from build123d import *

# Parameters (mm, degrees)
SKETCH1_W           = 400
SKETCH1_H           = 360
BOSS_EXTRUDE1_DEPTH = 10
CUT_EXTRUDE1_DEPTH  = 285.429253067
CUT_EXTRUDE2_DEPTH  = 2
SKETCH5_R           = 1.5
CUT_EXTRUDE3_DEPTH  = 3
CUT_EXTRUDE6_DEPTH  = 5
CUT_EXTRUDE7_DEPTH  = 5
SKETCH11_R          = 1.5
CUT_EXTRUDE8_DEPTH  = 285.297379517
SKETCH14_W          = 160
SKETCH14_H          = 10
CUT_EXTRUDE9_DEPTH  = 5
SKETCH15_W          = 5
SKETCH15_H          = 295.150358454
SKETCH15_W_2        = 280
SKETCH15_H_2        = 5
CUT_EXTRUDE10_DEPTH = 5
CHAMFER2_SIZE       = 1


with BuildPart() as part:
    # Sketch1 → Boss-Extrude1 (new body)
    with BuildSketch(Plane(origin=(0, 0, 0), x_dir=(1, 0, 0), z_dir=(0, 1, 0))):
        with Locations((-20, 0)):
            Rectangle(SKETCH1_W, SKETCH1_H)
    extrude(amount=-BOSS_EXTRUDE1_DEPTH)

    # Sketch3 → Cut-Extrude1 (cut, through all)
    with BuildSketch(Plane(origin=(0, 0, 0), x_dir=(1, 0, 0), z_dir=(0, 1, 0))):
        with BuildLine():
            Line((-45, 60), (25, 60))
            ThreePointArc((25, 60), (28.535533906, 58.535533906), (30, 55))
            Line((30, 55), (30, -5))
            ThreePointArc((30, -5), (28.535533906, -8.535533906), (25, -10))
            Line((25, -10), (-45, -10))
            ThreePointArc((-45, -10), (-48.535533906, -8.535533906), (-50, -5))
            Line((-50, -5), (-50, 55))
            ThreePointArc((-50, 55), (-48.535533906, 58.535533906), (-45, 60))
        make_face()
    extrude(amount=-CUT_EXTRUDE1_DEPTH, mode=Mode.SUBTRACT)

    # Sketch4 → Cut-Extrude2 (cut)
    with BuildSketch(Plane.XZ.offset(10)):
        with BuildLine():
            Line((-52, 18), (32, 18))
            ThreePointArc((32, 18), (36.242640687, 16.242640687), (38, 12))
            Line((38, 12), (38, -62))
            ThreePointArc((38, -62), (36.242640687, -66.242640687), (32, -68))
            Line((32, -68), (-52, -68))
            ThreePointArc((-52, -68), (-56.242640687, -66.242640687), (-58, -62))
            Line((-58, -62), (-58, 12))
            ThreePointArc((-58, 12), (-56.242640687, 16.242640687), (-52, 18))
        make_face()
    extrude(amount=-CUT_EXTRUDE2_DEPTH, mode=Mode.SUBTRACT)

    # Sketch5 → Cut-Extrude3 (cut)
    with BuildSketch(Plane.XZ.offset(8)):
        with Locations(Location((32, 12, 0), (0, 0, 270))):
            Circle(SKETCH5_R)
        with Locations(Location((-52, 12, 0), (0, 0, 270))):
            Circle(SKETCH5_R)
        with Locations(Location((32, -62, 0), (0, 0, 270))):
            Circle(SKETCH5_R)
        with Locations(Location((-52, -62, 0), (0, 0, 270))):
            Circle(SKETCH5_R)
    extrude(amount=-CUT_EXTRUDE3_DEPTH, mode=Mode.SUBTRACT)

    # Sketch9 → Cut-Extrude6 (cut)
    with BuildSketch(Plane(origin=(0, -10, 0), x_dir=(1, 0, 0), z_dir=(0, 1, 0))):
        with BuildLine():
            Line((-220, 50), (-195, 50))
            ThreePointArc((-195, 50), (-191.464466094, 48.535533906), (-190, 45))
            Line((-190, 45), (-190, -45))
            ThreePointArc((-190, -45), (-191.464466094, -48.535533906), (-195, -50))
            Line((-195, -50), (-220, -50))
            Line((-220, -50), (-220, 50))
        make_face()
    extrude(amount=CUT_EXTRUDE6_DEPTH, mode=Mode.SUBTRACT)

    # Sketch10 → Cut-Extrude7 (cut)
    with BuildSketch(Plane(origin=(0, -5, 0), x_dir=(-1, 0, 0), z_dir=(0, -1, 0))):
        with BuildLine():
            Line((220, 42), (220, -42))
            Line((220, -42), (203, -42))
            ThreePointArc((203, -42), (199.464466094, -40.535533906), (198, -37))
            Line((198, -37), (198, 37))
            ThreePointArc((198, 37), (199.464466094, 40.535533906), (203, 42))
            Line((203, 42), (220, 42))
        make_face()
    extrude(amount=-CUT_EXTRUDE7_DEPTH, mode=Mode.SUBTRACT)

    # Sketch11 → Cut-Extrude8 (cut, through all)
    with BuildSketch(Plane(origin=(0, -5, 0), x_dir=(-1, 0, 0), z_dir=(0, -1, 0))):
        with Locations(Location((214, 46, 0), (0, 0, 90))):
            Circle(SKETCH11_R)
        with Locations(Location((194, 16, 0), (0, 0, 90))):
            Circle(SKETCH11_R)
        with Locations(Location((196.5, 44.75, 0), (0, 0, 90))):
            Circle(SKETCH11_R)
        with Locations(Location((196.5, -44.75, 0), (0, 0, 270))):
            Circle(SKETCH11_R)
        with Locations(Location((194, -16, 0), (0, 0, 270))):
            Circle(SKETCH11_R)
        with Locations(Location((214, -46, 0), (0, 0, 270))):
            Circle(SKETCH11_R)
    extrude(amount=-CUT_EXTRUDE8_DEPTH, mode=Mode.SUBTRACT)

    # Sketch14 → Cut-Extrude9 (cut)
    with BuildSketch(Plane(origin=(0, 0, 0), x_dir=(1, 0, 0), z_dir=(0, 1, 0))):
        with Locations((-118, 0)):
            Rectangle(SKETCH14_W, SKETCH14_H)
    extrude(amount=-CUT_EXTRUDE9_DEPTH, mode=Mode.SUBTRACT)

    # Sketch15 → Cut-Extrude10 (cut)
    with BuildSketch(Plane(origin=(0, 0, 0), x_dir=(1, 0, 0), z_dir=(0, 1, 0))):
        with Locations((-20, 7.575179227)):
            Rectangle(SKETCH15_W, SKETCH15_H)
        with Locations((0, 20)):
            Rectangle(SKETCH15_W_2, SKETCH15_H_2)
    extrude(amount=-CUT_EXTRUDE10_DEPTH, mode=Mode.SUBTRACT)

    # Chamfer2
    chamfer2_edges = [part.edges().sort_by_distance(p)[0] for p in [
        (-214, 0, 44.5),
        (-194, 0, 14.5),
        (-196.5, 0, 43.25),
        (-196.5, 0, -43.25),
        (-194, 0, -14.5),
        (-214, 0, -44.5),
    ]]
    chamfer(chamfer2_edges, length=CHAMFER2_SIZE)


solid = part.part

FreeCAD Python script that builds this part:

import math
import FreeCAD as App
import Part
import Sketcher


def edges_at(feature, points):
    """Names of the edges that pass closest to the given points."""
    edges = feature.Shape.Edges
    near = lambda p: min(range(len(edges)), key=lambda i: edges[i].distToShape(Part.Vertex(*p))[0])
    return sorted({f"Edge{near(p) + 1}" for p in points})

doc = App.newDocument("Part")
body = doc.addObject("PartDesign::Body", "Body")

sketch1 = doc.addObject("Sketcher::SketchObject", "Sketch")
body.addObject(sketch1)
sketch1.AttachmentSupport = (doc.XZ_Plane, [""])
sketch1.MapMode = "FlatFace"
sketch1.addGeometry([
    Part.LineSegment(App.Vector(-220, -180, 0), App.Vector(-220, 180, 0)),
    Part.LineSegment(App.Vector(-220, 180, 0), App.Vector(180, 180, 0)),
    Part.LineSegment(App.Vector(180, 180, 0), App.Vector(180, -180, 0)),
    Part.LineSegment(App.Vector(180, -180, 0), App.Vector(-220, -180, 0)),
], False)
sketch1.addConstraint([
    Sketcher.Constraint("Coincident", 0, 2, 1, 1),
    Sketcher.Constraint("Coincident", 1, 2, 2, 1),
    Sketcher.Constraint("Coincident", 2, 2, 3, 1),
    Sketcher.Constraint("Coincident", 3, 2, 0, 1),
    Sketcher.Constraint("Vertical", 0),
    Sketcher.Constraint("Horizontal", 1),
    Sketcher.Constraint("Vertical", 2),
    Sketcher.Constraint("Horizontal", 3),
    Sketcher.Constraint("DistanceX", 1, 1, 1, 2, 400.0),
    Sketcher.Constraint("DistanceY", 0, 1, 0, 2, 360.0),
    Sketcher.Constraint("DistanceX", 0, 2, -1, 1, 220.0),
    Sketcher.Constraint("DistanceY", -1, 1, 0, 2, 180.0),
])
pad1 = doc.addObject("PartDesign::Pad", "Pad")
body.addObject(pad1)
pad1.Profile = sketch1
pad1.Length = 10

sketch2 = doc.addObject("Sketcher::SketchObject", "Sketch001")
body.addObject(sketch2)
sketch2.AttachmentSupport = (doc.XZ_Plane, [""])
sketch2.MapMode = "FlatFace"
sketch2.addGeometry([
    Part.LineSegment(App.Vector(25, -60, 0), App.Vector(-45, -60, 0)),
    Part.ArcOfCircle(Part.Circle(App.Vector(-45, -55, 0), App.Vector(0, 0, 1), 5), math.radians(180), math.radians(270)),
    Part.LineSegment(App.Vector(-50, -55, 0), App.Vector(-50, 5, 0)),
    Part.ArcOfCircle(Part.Circle(App.Vector(-45, 5, 0), App.Vector(0, 0, 1), 5), math.radians(90), math.radians(180)),
    Part.LineSegment(App.Vector(-45, 10, 0), App.Vector(25, 10, 0)),
    Part.ArcOfCircle(Part.Circle(App.Vector(25, 5, 0), App.Vector(0, 0, 1), 5), math.radians(0), math.radians(90)),
    Part.LineSegment(App.Vector(30, 5, 0), App.Vector(30, -55, 0)),
    Part.ArcOfCircle(Part.Circle(App.Vector(25, -55, 0), App.Vector(0, 0, 1), 5), math.radians(-90), math.radians(0)),
], False)
sketch2.addConstraint([
    Sketcher.Constraint("Tangent", 0, 2, 1, 2),
    Sketcher.Constraint("Tangent", 1, 1, 2, 1),
    Sketcher.Constraint("Tangent", 2, 2, 3, 2),
    Sketcher.Constraint("Tangent", 3, 1, 4, 1),
    Sketcher.Constraint("Tangent", 4, 2, 5, 2),
    Sketcher.Constraint("Tangent", 5, 1, 6, 1),
    Sketcher.Constraint("Tangent", 6, 2, 7, 2),
    Sketcher.Constraint("Tangent", 7, 1, 0, 1),
    Sketcher.Constraint("Horizontal", 0),
    Sketcher.Constraint("Vertical", 2),
    Sketcher.Constraint("Horizontal", 4),
    Sketcher.Constraint("Vertical", 6),
    Sketcher.Constraint("Equal", 1, 3),
    Sketcher.Constraint("Equal", 3, 5),
    Sketcher.Constraint("Equal", 5, 7),
    Sketcher.Constraint("Radius", 1, 5.0),
    Sketcher.Constraint("DistanceX", 0, 2, 0, 1, 70.0),
    Sketcher.Constraint("DistanceY", 2, 1, 2, 2, 60.0),
    Sketcher.Constraint("DistanceX", 1, 3, -1, 1, 45.0),
    Sketcher.Constraint("DistanceY", 1, 3, -1, 1, 55.0),
])
pocket1 = doc.addObject("PartDesign::Pocket", "Pocket")
body.addObject(pocket1)
pocket1.Profile = sketch2
pocket1.Type = "ThroughAll"
pocket1.Reversed = True

sketch3 = doc.addObject("Sketcher::SketchObject", "Sketch002")
body.addObject(sketch3)
sketch3.AttachmentSupport = (doc.XZ_Plane, [""])
sketch3.MapMode = "FlatFace"
sketch3.AttachmentOffset = App.Placement(App.Vector(0, 0, 10), App.Rotation())
sketch3.addGeometry([
    Part.LineSegment(App.Vector(32, 18, 0), App.Vector(-52, 18, 0)),
    Part.ArcOfCircle(Part.Circle(App.Vector(-52, 12, 0), App.Vector(0, 0, 1), 6), math.radians(90), math.radians(180)),
    Part.LineSegment(App.Vector(-58, 12, 0), App.Vector(-58, -62, 0)),
    Part.ArcOfCircle(Part.Circle(App.Vector(-52, -62, 0), App.Vector(0, 0, 1), 6), math.radians(180), math.radians(270)),
    Part.LineSegment(App.Vector(-52, -68, 0), App.Vector(32, -68, 0)),
    Part.ArcOfCircle(Part.Circle(App.Vector(32, -62, 0), App.Vector(0, 0, 1), 6), math.radians(-90), math.radians(0)),
    Part.LineSegment(App.Vector(38, -62, 0), App.Vector(38, 12, 0)),
    Part.ArcOfCircle(Part.Circle(App.Vector(32, 12, 0), App.Vector(0, 0, 1), 6), math.radians(0), math.radians(90)),
], False)
sketch3.addConstraint([
    Sketcher.Constraint("Tangent", 0, 2, 1, 1),
    Sketcher.Constraint("Tangent", 1, 2, 2, 1),
    Sketcher.Constraint("Tangent", 2, 2, 3, 1),
    Sketcher.Constraint("Tangent", 3, 2, 4, 1),
    Sketcher.Constraint("Tangent", 4, 2, 5, 1),
    Sketcher.Constraint("Tangent", 5, 2, 6, 1),
    Sketcher.Constraint("Tangent", 6, 2, 7, 1),
    Sketcher.Constraint("Tangent", 7, 2, 0, 1),
    Sketcher.Constraint("Horizontal", 0),
    Sketcher.Constraint("Vertical", 2),
    Sketcher.Constraint("Horizontal", 4),
    Sketcher.Constraint("Vertical", 6),
    Sketcher.Constraint("Equal", 1, 3),
    Sketcher.Constraint("Equal", 3, 5),
    Sketcher.Constraint("Equal", 5, 7),
    Sketcher.Constraint("Radius", 1, 6.0),
    Sketcher.Constraint("DistanceX", 0, 2, 0, 1, 84.0),
    Sketcher.Constraint("DistanceY", 2, 2, 2, 1, 74.0),
    Sketcher.Constraint("DistanceX", 1, 3, -1, 1, 52.0),
    Sketcher.Constraint("DistanceY", -1, 1, 1, 3, 12.0),
])
pocket2 = doc.addObject("PartDesign::Pocket", "Pocket001")
body.addObject(pocket2)
pocket2.Profile = sketch3
pocket2.Length = 2

sketch4 = doc.addObject("Sketcher::SketchObject", "Sketch003")
body.addObject(sketch4)
sketch4.AttachmentSupport = (doc.XZ_Plane, [""])
sketch4.MapMode = "FlatFace"
sketch4.AttachmentOffset = App.Placement(App.Vector(0, 0, 8), App.Rotation())
sketch4.addGeometry([
    Part.Circle(App.Vector(32, 12, 0), App.Vector(0, 0, 1), 1.5),
    Part.Circle(App.Vector(-52, 12, 0), App.Vector(0, 0, 1), 1.5),
    Part.Circle(App.Vector(32, -62, 0), App.Vector(0, 0, 1), 1.5),
    Part.Circle(App.Vector(-52, -62, 0), App.Vector(0, 0, 1), 1.5),
], False)
sketch4.addConstraint([
    Sketcher.Constraint("Equal", 0, 1),
    Sketcher.Constraint("Equal", 1, 2),
    Sketcher.Constraint("Equal", 2, 3),
    Sketcher.Constraint("Horizontal", 0, 3, 1, 3),
    Sketcher.Constraint("Horizontal", 2, 3, 3, 3),
    Sketcher.Constraint("Vertical", 0, 3, 2, 3),
    Sketcher.Constraint("Vertical", 1, 3, 3, 3),
    Sketcher.Constraint("Diameter", 0, 3.0),
    Sketcher.Constraint("DistanceX", -1, 1, 0, 3, 32.0),
    Sketcher.Constraint("DistanceY", -1, 1, 0, 3, 12.0),
    Sketcher.Constraint("DistanceX", 1, 3, -1, 1, 52.0),
    Sketcher.Constraint("DistanceY", 2, 3, -1, 1, 62.0),
])
pocket3 = doc.addObject("PartDesign::Pocket", "Pocket002")
body.addObject(pocket3)
pocket3.Profile = sketch4
pocket3.Length = 3

sketch5 = doc.addObject("Sketcher::SketchObject", "Sketch004")
body.addObject(sketch5)
sketch5.AttachmentSupport = (doc.XZ_Plane, [""])
sketch5.MapMode = "FlatFace"
sketch5.AttachmentOffset = App.Placement(App.Vector(0, 0, 10), App.Rotation())
sketch5.addGeometry([
    Part.LineSegment(App.Vector(-195, -50, 0), App.Vector(-220, -50, 0)),
    Part.LineSegment(App.Vector(-220, -50, 0), App.Vector(-220, 50, 0)),
    Part.LineSegment(App.Vector(-220, 50, 0), App.Vector(-195, 50, 0)),
    Part.ArcOfCircle(Part.Circle(App.Vector(-195, 45, 0), App.Vector(0, 0, 1), 5), math.radians(0), math.radians(90)),
    Part.LineSegment(App.Vector(-190, 45, 0), App.Vector(-190, -45, 0)),
    Part.ArcOfCircle(Part.Circle(App.Vector(-195, -45, 0), App.Vector(0, 0, 1), 5), math.radians(-90), math.radians(0)),
], False)
sketch5.addConstraint([
    Sketcher.Constraint("Coincident", 0, 2, 1, 1),
    Sketcher.Constraint("Coincident", 1, 2, 2, 1),
    Sketcher.Constraint("Tangent", 2, 2, 3, 2),
    Sketcher.Constraint("Tangent", 3, 1, 4, 1),
    Sketcher.Constraint("Tangent", 4, 2, 5, 2),
    Sketcher.Constraint("Tangent", 5, 1, 0, 1),
    Sketcher.Constraint("Horizontal", 0),
    Sketcher.Constraint("Vertical", 1),
    Sketcher.Constraint("Horizontal", 2),
    Sketcher.Constraint("Vertical", 4),
    Sketcher.Constraint("Equal", 3, 5),
    Sketcher.Constraint("Radius", 3, 5.0),
    Sketcher.Constraint("DistanceX", 0, 2, 0, 1, 25.0),
    Sketcher.Constraint("DistanceY", 1, 1, 1, 2, 100.0),
    Sketcher.Constraint("DistanceX", 3, 3, -1, 1, 195.0),
    Sketcher.Constraint("DistanceY", -1, 1, 3, 3, 45.0),
])
pocket4 = doc.addObject("PartDesign::Pocket", "Pocket003")
body.addObject(pocket4)
pocket4.Profile = sketch5
pocket4.Length = 5

sketch6 = doc.addObject("Sketcher::SketchObject", "Sketch005")
body.addObject(sketch6)
sketch6.AttachmentSupport = (doc.XZ_Plane, [""])
sketch6.MapMode = "FlatFace"
sketch6.AttachmentOffset = App.Placement(App.Vector(0, 0, 5), App.Rotation())
sketch6.addGeometry([
    Part.LineSegment(App.Vector(-220, 42, 0), App.Vector(-220, -42, 0)),
    Part.LineSegment(App.Vector(-220, -42, 0), App.Vector(-203, -42, 0)),
    Part.ArcOfCircle(Part.Circle(App.Vector(-203, -37, 0), App.Vector(0, 0, 1), 5), math.radians(-90), math.radians(0)),
    Part.LineSegment(App.Vector(-198, -37, 0), App.Vector(-198, 37, 0)),
    Part.ArcOfCircle(Part.Circle(App.Vector(-203, 37, 0), App.Vector(0, 0, 1), 5), math.radians(0), math.radians(90)),
    Part.LineSegment(App.Vector(-203, 42, 0), App.Vector(-220, 42, 0)),
], False)
sketch6.addConstraint([
    Sketcher.Constraint("Coincident", 0, 2, 1, 1),
    Sketcher.Constraint("Tangent", 1, 2, 2, 1),
    Sketcher.Constraint("Tangent", 2, 2, 3, 1),
    Sketcher.Constraint("Tangent", 3, 2, 4, 1),
    Sketcher.Constraint("Tangent", 4, 2, 5, 1),
    Sketcher.Constraint("Coincident", 5, 2, 0, 1),
    Sketcher.Constraint("Vertical", 0),
    Sketcher.Constraint("Horizontal", 1),
    Sketcher.Constraint("Vertical", 3),
    Sketcher.Constraint("Horizontal", 5),
    Sketcher.Constraint("Equal", 2, 4),
    Sketcher.Constraint("Radius", 2, 5.0),
    Sketcher.Constraint("DistanceX", 1, 1, 1, 2, 17.0),
    Sketcher.Constraint("DistanceY", 0, 2, 0, 1, 84.0),
    Sketcher.Constraint("DistanceX", 2, 3, -1, 1, 203.0),
    Sketcher.Constraint("DistanceY", 2, 3, -1, 1, 37.0),
])
pocket5 = doc.addObject("PartDesign::Pocket", "Pocket004")
body.addObject(pocket5)
pocket5.Profile = sketch6
pocket5.Length = 5

sketch7 = doc.addObject("Sketcher::SketchObject", "Sketch006")
body.addObject(sketch7)
sketch7.AttachmentSupport = (doc.XZ_Plane, [""])
sketch7.MapMode = "FlatFace"
sketch7.AttachmentOffset = App.Placement(App.Vector(0, 0, 5), App.Rotation())
sketch7.addGeometry([
    Part.Circle(App.Vector(-214, -46, 0), App.Vector(0, 0, 1), 1.5),
    Part.Circle(App.Vector(-194, -16, 0), App.Vector(0, 0, 1), 1.5),
    Part.Circle(App.Vector(-196.5, -44.8, 0), App.Vector(0, 0, 1), 1.5),
    Part.Circle(App.Vector(-196.5, 44.8, 0), App.Vector(0, 0, 1), 1.5),
    Part.Circle(App.Vector(-194, 16, 0), App.Vector(0, 0, 1), 1.5),
    Part.Circle(App.Vector(-214, 46, 0), App.Vector(0, 0, 1), 1.5),
], False)
sketch7.addConstraint([
    Sketcher.Constraint("Equal", 0, 1),
    Sketcher.Constraint("Equal", 1, 2),
    Sketcher.Constraint("Equal", 2, 3),
    Sketcher.Constraint("Equal", 3, 4),
    Sketcher.Constraint("Equal", 4, 5),
    Sketcher.Constraint("Symmetric", 2, 3, 3, 3, -1),
    Sketcher.Constraint("Symmetric", 1, 3, 4, 3, -1),
    Sketcher.Constraint("Symmetric", 0, 3, 5, 3, -1),
    Sketcher.Constraint("Diameter", 0, 3.0),
    Sketcher.Constraint("DistanceX", 0, 3, -1, 1, 214.0),
    Sketcher.Constraint("DistanceY", 0, 3, -1, 1, 46.0),
    Sketcher.Constraint("DistanceX", 1, 3, -1, 1, 194.0),
    Sketcher.Constraint("DistanceY", 1, 3, -1, 1, 16.0),
    Sketcher.Constraint("DistanceX", 2, 3, -1, 1, 196.5),
    Sketcher.Constraint("DistanceY", 2, 3, 3, 3, 89.5),
])
pocket6 = doc.addObject("PartDesign::Pocket", "Pocket005")
body.addObject(pocket6)
pocket6.Profile = sketch7
pocket6.Type = "ThroughAll"

sketch8 = doc.addObject("Sketcher::SketchObject", "Sketch007")
body.addObject(sketch8)
sketch8.AttachmentSupport = (doc.XZ_Plane, [""])
sketch8.MapMode = "FlatFace"
sketch8.addGeometry([
    Part.LineSegment(App.Vector(-198, -5, 0), App.Vector(-198, 5, 0)),
    Part.LineSegment(App.Vector(-198, 5, 0), App.Vector(-38, 5, 0)),
    Part.LineSegment(App.Vector(-38, 5, 0), App.Vector(-38, -5, 0)),
    Part.LineSegment(App.Vector(-38, -5, 0), App.Vector(-198, -5, 0)),
], False)
sketch8.addConstraint([
    Sketcher.Constraint("Coincident", 0, 2, 1, 1),
    Sketcher.Constraint("Coincident", 1, 2, 2, 1),
    Sketcher.Constraint("Coincident", 2, 2, 3, 1),
    Sketcher.Constraint("Coincident", 3, 2, 0, 1),
    Sketcher.Constraint("Vertical", 0),
    Sketcher.Constraint("Horizontal", 1),
    Sketcher.Constraint("Vertical", 2),
    Sketcher.Constraint("Horizontal", 3),
    Sketcher.Constraint("DistanceX", 1, 1, 1, 2, 160.0),
    Sketcher.Constraint("DistanceY", 0, 1, 0, 2, 10.0),
    Sketcher.Constraint("DistanceX", 0, 2, -1, 1, 198.0),
    Sketcher.Constraint("DistanceY", -1, 1, 0, 2, 5.0),
])
pocket7 = doc.addObject("PartDesign::Pocket", "Pocket006")
body.addObject(pocket7)
pocket7.Profile = sketch8
pocket7.Length = 5
pocket7.Reversed = True

sketch9 = doc.addObject("Sketcher::SketchObject", "Sketch008")
body.addObject(sketch9)
sketch9.AttachmentSupport = (doc.XZ_Plane, [""])
sketch9.MapMode = "FlatFace"
sketch9.addGeometry([
    Part.LineSegment(App.Vector(-22, -18, 0), App.Vector(-22, 140, 0)),
    Part.LineSegment(App.Vector(-22, 140, 0), App.Vector(-18, 140, 0)),
    Part.LineSegment(App.Vector(-18, 140, 0), App.Vector(-18, -18, 0)),
    Part.LineSegment(App.Vector(-18, -18, 0), App.Vector(140, -18, 0)),
    Part.LineSegment(App.Vector(140, -18, 0), App.Vector(140, -22, 0)),
    Part.LineSegment(App.Vector(140, -22, 0), App.Vector(-18, -22, 0)),
    Part.LineSegment(App.Vector(-18, -22, 0), App.Vector(-18, -155, 0)),
    Part.LineSegment(App.Vector(-18, -155, 0), App.Vector(-22, -155, 0)),
    Part.LineSegment(App.Vector(-22, -155, 0), App.Vector(-22, -22, 0)),
    Part.LineSegment(App.Vector(-22, -22, 0), App.Vector(-140, -22, 0)),
    Part.LineSegment(App.Vector(-140, -22, 0), App.Vector(-140, -18, 0)),
    Part.LineSegment(App.Vector(-140, -18, 0), App.Vector(-22, -18, 0)),
], False)
sketch9.addConstraint([
    Sketcher.Constraint("Coincident", 0, 2, 1, 1),
    Sketcher.Constraint("Coincident", 1, 2, 2, 1),
    Sketcher.Constraint("Coincident", 2, 2, 3, 1),
    Sketcher.Constraint("Coincident", 3, 2, 4, 1),
    Sketcher.Constraint("Coincident", 4, 2, 5, 1),
    Sketcher.Constraint("Coincident", 5, 2, 6, 1),
    Sketcher.Constraint("Coincident", 6, 2, 7, 1),
    Sketcher.Constraint("Coincident", 7, 2, 8, 1),
    Sketcher.Constraint("Coincident", 8, 2, 9, 1),
    Sketcher.Constraint("Coincident", 9, 2, 10, 1),
    Sketcher.Constraint("Coincident", 10, 2, 11, 1),
    Sketcher.Constraint("Coincident", 11, 2, 0, 1),
    Sketcher.Constraint("Vertical", 0),
    Sketcher.Constraint("Horizontal", 1),
    Sketcher.Constraint("Vertical", 2),
    Sketcher.Constraint("Horizontal", 3),
    Sketcher.Constraint("Vertical", 4),
    Sketcher.Constraint("Horizontal", 5),
    Sketcher.Constraint("Vertical", 6),
    Sketcher.Constraint("Horizontal", 7),
    Sketcher.Constraint("Vertical", 8),
    Sketcher.Constraint("Horizontal", 9),
    Sketcher.Constraint("Vertical", 10),
    Sketcher.Constraint("Horizontal", 11),
    Sketcher.Constraint("Symmetric", 4, 2, 9, 2, -2),
    Sketcher.Constraint("Horizontal", 3, 2, 10, 2),
    Sketcher.Constraint("Vertical", 2, 2, 5, 2),
    Sketcher.Constraint("Vertical", 0, 2, 7, 2),
    Sketcher.Constraint("Equal", 5, 0),
    Sketcher.Constraint("Equal", 7, 4),
    Sketcher.Constraint("DistanceX", 1, 1, 1, 2, 5.0),
    Sketcher.Constraint("DistanceX", 3, 1, 3, 2, 157.5),
    Sketcher.Constraint("DistanceX", 9, 2, 9, 1, 117.5),
    Sketcher.Constraint("DistanceY", -1, 1, 0, 2, 140.0),
    Sketcher.Constraint("DistanceY", 6, 2, 6, 1, 132.650358),
])
pocket8 = doc.addObject("PartDesign::Pocket", "Pocket007")
body.addObject(pocket8)
pocket8.Profile = sketch9
pocket8.Length = 5
pocket8.Reversed = True
doc.recompute()

chamfer = doc.addObject("PartDesign::Chamfer", "Chamfer")
body.addObject(chamfer)
chamfer.Base = (pocket8, edges_at(pocket8, [
    (-214, 0, 44.5),
    (-194, 0, 14.5),
    (-196.5, 0, 43.25),
    (-196.5, 0, -43.25),
    (-194, 0, -14.5),
    (-214, 0, -44.5),
]))
chamfer.Size = 1

doc.recompute()
